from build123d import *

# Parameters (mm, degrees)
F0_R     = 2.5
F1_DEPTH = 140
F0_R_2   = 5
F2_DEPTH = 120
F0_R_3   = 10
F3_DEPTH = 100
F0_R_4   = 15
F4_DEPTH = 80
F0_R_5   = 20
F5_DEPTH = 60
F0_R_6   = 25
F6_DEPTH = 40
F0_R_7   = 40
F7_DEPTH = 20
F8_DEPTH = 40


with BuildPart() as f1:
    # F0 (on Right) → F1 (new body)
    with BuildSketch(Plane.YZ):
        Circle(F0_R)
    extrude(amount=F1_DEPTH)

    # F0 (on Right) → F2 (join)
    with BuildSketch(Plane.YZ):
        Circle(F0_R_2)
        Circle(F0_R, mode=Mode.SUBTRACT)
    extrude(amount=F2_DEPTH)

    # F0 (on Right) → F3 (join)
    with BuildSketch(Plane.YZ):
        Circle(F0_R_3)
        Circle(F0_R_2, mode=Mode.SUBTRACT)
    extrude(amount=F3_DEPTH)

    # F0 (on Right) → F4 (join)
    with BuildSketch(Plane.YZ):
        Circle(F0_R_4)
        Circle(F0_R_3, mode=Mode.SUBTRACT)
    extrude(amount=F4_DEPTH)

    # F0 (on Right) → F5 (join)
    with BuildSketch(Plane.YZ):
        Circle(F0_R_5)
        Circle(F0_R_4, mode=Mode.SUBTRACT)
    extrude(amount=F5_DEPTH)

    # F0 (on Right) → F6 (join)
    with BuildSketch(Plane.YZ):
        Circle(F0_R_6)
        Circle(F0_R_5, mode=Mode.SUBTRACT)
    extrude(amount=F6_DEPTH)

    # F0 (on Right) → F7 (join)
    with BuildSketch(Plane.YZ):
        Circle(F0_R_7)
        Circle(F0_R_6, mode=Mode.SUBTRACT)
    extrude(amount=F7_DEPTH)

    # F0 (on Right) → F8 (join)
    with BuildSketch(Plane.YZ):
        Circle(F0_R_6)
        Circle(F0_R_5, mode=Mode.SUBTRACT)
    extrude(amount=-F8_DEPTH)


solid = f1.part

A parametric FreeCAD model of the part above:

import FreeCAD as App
import Part
import Sketcher

V = App.Vector
Q = App.Units.Quantity

doc = App.newDocument("Part")
params = doc.addObject("Spreadsheet::Sheet", "Params")
for row, (alias, value) in enumerate([
    ("sketch1_diameter", "5 mm"),
    ("pad1_length", "140 mm"),
    ("sketch2_diameter", "10 mm"),
    ("sketch2_diameter2", "5 mm"),
    ("pad2_length", "120 mm"),
    ("sketch3_diameter", "20 mm"),
    ("sketch3_diameter2", "10 mm"),
    ("pad3_length", "100 mm"),
    ("sketch4_diameter", "30 mm"),
    ("sketch4_diameter2", "20 mm"),
    ("pad4_length", "80 mm"),
    ("sketch5_diameter", "40 mm"),
    ("sketch5_diameter2", "30 mm"),
    ("pad5_length", "60 mm"),
    ("sketch6_diameter", "50 mm"),
    ("sketch6_diameter2", "40 mm"),
    ("pad6_length", "40 mm"),
    ("sketch7_diameter", "80 mm"),
    ("sketch7_diameter2", "50 mm"),
    ("pad7_length", "20 mm"),
    ("sketch8_diameter", "50 mm"),
    ("sketch8_diameter2", "40 mm"),
    ("pad8_length", "40 mm"),
], start=1):
    params.set(f"A{row}", alias)
    params.set(f"B{row}", "=" + value)
    params.setAlias(f"B{row}", alias)

body = doc.addObject("PartDesign::Body", "Body")

# Sketch on YZ plane
sketch1 = body.newObject("Sketcher::SketchObject", "Sketch")
sketch1.AttachmentSupport = (doc.getObject("YZ_Plane"), [""])
sketch1.MapMode = "FlatFace"
sketch1.addGeometry(Part.Circle(V(0, 0, 0), V(0, 0, 1), 2.5), False)
sketch1.addConstraint([
    Sketcher.Constraint("Coincident", 0, 3, -1, 1),
    Sketcher.Constraint("Diameter", 0, Q("5 mm")),
])
sketch1.setExpression("Constraints[1]", "Params.sketch1_diameter")
pad1 = body.newObject("PartDesign::Pad", "Pad")
pad1.Profile = sketch1
pad1.setExpression("Length", "Params.pad1_length")

# Sketch on YZ plane
sketch2 = body.newObject("Sketcher::SketchObject", "Sketch001")
sketch2.AttachmentSupport = (doc.getObject("YZ_Plane"), [""])
sketch2.MapMode = "FlatFace"
sketch2.addGeometry([
    Part.Circle(V(0, 0, 0), V(0, 0, 1), 5),
    Part.Circle(V(0, 0, 0), V(0, 0, 1), 2.5),
], False)
sketch2.addConstraint([
    Sketcher.Constraint("Coincident", 0, 3, -1, 1),
    Sketcher.Constraint("Coincident", 1, 3, -1, 1),
    Sketcher.Constraint("Diameter", 0, Q("10 mm")),
    Sketcher.Constraint("Diameter", 1, Q("5 mm")),
])
sketch2.setExpression("Constraints[2]", "Params.sketch2_diameter")
sketch2.setExpression("Constraints[3]", "Params.sketch2_diameter2")
pad2 = body.newObject("PartDesign::Pad", "Pad001")
pad2.Profile = sketch2
pad2.setExpression("Length", "Params.pad2_length")

# Sketch on YZ plane
sketch3 = body.newObject("Sketcher::SketchObject", "Sketch002")
sketch3.AttachmentSupport = (doc.getObject("YZ_Plane"), [""])
sketch3.MapMode = "FlatFace"
sketch3.addGeometry([
    Part.Circle(V(0, 0, 0), V(0, 0, 1), 10),
    Part.Circle(V(0, 0, 0), V(0, 0, 1), 5),
], False)
sketch3.addConstraint([
    Sketcher.Constraint("Coincident", 0, 3, -1, 1),
    Sketcher.Constraint("Coincident", 1, 3, -1, 1),
    Sketcher.Constraint("Diameter", 0, Q("20 mm")),
    Sketcher.Constraint("Diameter", 1, Q("10 mm")),
])
sketch3.setExpression("Constraints[2]", "Params.sketch3_diameter")
sketch3.setExpression("Constraints[3]", "Params.sketch3_diameter2")
pad3 = body.newObject("PartDesign::Pad", "Pad002")
pad3.Profile = sketch3
pad3.setExpression("Length", "Params.pad3_length")

# Sketch on YZ plane
sketch4 = body.newObject("Sketcher::SketchObject", "Sketch003")
sketch4.AttachmentSupport = (doc.getObject("YZ_Plane"), [""])
sketch4.MapMode = "FlatFace"
sketch4.addGeometry([
    Part.Circle(V(0, 0, 0), V(0, 0, 1), 15),
    Part.Circle(V(0, 0, 0), V(0, 0, 1), 10),
], False)
sketch4.addConstraint([
    Sketcher.Constraint("Coincident", 0, 3, -1, 1),
    Sketcher.Constraint("Coincident", 1, 3, -1, 1),
    Sketcher.Constraint("Diameter", 0, Q("30 mm")),
    Sketcher.Constraint("Diameter", 1, Q("20 mm")),
])
sketch4.setExpression("Constraints[2]", "Params.sketch4_diameter")
sketch4.setExpression("Constraints[3]", "Params.sketch4_diameter2")
pad4 = body.newObject("PartDesign::Pad", "Pad003")
pad4.Profile = sketch4
pad4.setExpression("Length", "Params.pad4_length")

# Sketch on YZ plane
sketch5 = body.newObject("Sketcher::SketchObject", "Sketch004")
sketch5.AttachmentSupport = (doc.getObject("YZ_Plane"), [""])
sketch5.MapMode = "FlatFace"
sketch5.addGeometry([
    Part.Circle(V(0, 0, 0), V(0, 0, 1), 20),
    Part.Circle(V(0, 0, 0), V(0, 0, 1), 15),
], False)
sketch5.addConstraint([
    Sketcher.Constraint("Coincident", 0, 3, -1, 1),
    Sketcher.Constraint("Coincident", 1, 3, -1, 1),
    Sketcher.Constraint("Diameter", 0, Q("40 mm")),
    Sketcher.Constraint("Diameter", 1, Q("30 mm")),
])
sketch5.setExpression("Constraints[2]", "Params.sketch5_diameter")
sketch5.setExpression("Constraints[3]", "Params.sketch5_diameter2")
pad5 = body.newObject("PartDesign::Pad", "Pad004")
pad5.Profile = sketch5
pad5.setExpression("Length", "Params.pad5_length")

# Sketch on YZ plane
sketch6 = body.newObject("Sketcher::SketchObject", "Sketch005")
sketch6.AttachmentSupport = (doc.getObject("YZ_Plane"), [""])
sketch6.MapMode = "FlatFace"
sketch6.addGeometry([
    Part.Circle(V(0, 0, 0), V(0, 0, 1), 25),
    Part.Circle(V(0, 0, 0), V(0, 0, 1), 20),
], False)
sketch6.addConstraint([
    Sketcher.Constraint("Coincident", 0, 3, -1, 1),
    Sketcher.Constraint("Coincident", 1, 3, -1, 1),
    Sketcher.Constraint("Diameter", 0, Q("50 mm")),
    Sketcher.Constraint("Diameter", 1, Q("40 mm")),
])
sketch6.setExpression("Constraints[2]", "Params.sketch6_diameter")
sketch6.setExpression("Constraints[3]", "Params.sketch6_diameter2")
pad6 = body.newObject("PartDesign::Pad", "Pad005")
pad6.Profile = sketch6
pad6.setExpression("Length", "Params.pad6_length")

# Sketch on YZ plane
sketch7 = body.newObject("Sketcher::SketchObject", "Sketch006")
sketch7.AttachmentSupport = (doc.getObject("YZ_Plane"), [""])
sketch7.MapMode = "FlatFace"
sketch7.addGeometry([
    Part.Circle(V(0, 0, 0), V(0, 0, 1), 40),
    Part.Circle(V(0, 0, 0), V(0, 0, 1), 25),
], False)
sketch7.addConstraint([
    Sketcher.Constraint("Coincident", 0, 3, -1, 1),
    Sketcher.Constraint("Coincident", 1, 3, -1, 1),
    Sketcher.Constraint("Diameter", 0, Q("80 mm")),
    Sketcher.Constraint("Diameter", 1, Q("50 mm")),
])
sketch7.setExpression("Constraints[2]", "Params.sketch7_diameter")
sketch7.setExpression("Constraints[3]", "Params.sketch7_diameter2")
pad7 = body.newObject("PartDesign::Pad", "Pad006")
pad7.Profile = sketch7
pad7.setExpression("Length", "Params.pad7_length")

# Sketch on YZ plane
sketch8 = body.newObject("Sketcher::SketchObject", "Sketch007")
sketch8.AttachmentSupport = (doc.getObject("YZ_Plane"), [""])
sketch8.MapMode = "FlatFace"
sketch8.addGeometry([
    Part.Circle(V(0, 0, 0), V(0, 0, 1), 25),
    Part.Circle(V(0, 0, 0), V(0, 0, 1), 20),
], False)
sketch8.addConstraint([
    Sketcher.Constraint("Coincident", 0, 3, -1, 1),
    Sketcher.Constraint("Coincident", 1, 3, -1, 1),
    Sketcher.Constraint("Diameter", 0, Q("50 mm")),
    Sketcher.Constraint("Diameter", 1, Q("40 mm")),
])
sketch8.setExpression("Constraints[2]", "Params.sketch8_diameter")
sketch8.setExpression("Constraints[3]", "Params.sketch8_diameter2")
pad8 = body.newObject("PartDesign::Pad", "Pad007")
pad8.Profile = sketch8
pad8.setExpression("Length", "Params.pad8_length")
pad8.Reversed = True

doc.recompute()
